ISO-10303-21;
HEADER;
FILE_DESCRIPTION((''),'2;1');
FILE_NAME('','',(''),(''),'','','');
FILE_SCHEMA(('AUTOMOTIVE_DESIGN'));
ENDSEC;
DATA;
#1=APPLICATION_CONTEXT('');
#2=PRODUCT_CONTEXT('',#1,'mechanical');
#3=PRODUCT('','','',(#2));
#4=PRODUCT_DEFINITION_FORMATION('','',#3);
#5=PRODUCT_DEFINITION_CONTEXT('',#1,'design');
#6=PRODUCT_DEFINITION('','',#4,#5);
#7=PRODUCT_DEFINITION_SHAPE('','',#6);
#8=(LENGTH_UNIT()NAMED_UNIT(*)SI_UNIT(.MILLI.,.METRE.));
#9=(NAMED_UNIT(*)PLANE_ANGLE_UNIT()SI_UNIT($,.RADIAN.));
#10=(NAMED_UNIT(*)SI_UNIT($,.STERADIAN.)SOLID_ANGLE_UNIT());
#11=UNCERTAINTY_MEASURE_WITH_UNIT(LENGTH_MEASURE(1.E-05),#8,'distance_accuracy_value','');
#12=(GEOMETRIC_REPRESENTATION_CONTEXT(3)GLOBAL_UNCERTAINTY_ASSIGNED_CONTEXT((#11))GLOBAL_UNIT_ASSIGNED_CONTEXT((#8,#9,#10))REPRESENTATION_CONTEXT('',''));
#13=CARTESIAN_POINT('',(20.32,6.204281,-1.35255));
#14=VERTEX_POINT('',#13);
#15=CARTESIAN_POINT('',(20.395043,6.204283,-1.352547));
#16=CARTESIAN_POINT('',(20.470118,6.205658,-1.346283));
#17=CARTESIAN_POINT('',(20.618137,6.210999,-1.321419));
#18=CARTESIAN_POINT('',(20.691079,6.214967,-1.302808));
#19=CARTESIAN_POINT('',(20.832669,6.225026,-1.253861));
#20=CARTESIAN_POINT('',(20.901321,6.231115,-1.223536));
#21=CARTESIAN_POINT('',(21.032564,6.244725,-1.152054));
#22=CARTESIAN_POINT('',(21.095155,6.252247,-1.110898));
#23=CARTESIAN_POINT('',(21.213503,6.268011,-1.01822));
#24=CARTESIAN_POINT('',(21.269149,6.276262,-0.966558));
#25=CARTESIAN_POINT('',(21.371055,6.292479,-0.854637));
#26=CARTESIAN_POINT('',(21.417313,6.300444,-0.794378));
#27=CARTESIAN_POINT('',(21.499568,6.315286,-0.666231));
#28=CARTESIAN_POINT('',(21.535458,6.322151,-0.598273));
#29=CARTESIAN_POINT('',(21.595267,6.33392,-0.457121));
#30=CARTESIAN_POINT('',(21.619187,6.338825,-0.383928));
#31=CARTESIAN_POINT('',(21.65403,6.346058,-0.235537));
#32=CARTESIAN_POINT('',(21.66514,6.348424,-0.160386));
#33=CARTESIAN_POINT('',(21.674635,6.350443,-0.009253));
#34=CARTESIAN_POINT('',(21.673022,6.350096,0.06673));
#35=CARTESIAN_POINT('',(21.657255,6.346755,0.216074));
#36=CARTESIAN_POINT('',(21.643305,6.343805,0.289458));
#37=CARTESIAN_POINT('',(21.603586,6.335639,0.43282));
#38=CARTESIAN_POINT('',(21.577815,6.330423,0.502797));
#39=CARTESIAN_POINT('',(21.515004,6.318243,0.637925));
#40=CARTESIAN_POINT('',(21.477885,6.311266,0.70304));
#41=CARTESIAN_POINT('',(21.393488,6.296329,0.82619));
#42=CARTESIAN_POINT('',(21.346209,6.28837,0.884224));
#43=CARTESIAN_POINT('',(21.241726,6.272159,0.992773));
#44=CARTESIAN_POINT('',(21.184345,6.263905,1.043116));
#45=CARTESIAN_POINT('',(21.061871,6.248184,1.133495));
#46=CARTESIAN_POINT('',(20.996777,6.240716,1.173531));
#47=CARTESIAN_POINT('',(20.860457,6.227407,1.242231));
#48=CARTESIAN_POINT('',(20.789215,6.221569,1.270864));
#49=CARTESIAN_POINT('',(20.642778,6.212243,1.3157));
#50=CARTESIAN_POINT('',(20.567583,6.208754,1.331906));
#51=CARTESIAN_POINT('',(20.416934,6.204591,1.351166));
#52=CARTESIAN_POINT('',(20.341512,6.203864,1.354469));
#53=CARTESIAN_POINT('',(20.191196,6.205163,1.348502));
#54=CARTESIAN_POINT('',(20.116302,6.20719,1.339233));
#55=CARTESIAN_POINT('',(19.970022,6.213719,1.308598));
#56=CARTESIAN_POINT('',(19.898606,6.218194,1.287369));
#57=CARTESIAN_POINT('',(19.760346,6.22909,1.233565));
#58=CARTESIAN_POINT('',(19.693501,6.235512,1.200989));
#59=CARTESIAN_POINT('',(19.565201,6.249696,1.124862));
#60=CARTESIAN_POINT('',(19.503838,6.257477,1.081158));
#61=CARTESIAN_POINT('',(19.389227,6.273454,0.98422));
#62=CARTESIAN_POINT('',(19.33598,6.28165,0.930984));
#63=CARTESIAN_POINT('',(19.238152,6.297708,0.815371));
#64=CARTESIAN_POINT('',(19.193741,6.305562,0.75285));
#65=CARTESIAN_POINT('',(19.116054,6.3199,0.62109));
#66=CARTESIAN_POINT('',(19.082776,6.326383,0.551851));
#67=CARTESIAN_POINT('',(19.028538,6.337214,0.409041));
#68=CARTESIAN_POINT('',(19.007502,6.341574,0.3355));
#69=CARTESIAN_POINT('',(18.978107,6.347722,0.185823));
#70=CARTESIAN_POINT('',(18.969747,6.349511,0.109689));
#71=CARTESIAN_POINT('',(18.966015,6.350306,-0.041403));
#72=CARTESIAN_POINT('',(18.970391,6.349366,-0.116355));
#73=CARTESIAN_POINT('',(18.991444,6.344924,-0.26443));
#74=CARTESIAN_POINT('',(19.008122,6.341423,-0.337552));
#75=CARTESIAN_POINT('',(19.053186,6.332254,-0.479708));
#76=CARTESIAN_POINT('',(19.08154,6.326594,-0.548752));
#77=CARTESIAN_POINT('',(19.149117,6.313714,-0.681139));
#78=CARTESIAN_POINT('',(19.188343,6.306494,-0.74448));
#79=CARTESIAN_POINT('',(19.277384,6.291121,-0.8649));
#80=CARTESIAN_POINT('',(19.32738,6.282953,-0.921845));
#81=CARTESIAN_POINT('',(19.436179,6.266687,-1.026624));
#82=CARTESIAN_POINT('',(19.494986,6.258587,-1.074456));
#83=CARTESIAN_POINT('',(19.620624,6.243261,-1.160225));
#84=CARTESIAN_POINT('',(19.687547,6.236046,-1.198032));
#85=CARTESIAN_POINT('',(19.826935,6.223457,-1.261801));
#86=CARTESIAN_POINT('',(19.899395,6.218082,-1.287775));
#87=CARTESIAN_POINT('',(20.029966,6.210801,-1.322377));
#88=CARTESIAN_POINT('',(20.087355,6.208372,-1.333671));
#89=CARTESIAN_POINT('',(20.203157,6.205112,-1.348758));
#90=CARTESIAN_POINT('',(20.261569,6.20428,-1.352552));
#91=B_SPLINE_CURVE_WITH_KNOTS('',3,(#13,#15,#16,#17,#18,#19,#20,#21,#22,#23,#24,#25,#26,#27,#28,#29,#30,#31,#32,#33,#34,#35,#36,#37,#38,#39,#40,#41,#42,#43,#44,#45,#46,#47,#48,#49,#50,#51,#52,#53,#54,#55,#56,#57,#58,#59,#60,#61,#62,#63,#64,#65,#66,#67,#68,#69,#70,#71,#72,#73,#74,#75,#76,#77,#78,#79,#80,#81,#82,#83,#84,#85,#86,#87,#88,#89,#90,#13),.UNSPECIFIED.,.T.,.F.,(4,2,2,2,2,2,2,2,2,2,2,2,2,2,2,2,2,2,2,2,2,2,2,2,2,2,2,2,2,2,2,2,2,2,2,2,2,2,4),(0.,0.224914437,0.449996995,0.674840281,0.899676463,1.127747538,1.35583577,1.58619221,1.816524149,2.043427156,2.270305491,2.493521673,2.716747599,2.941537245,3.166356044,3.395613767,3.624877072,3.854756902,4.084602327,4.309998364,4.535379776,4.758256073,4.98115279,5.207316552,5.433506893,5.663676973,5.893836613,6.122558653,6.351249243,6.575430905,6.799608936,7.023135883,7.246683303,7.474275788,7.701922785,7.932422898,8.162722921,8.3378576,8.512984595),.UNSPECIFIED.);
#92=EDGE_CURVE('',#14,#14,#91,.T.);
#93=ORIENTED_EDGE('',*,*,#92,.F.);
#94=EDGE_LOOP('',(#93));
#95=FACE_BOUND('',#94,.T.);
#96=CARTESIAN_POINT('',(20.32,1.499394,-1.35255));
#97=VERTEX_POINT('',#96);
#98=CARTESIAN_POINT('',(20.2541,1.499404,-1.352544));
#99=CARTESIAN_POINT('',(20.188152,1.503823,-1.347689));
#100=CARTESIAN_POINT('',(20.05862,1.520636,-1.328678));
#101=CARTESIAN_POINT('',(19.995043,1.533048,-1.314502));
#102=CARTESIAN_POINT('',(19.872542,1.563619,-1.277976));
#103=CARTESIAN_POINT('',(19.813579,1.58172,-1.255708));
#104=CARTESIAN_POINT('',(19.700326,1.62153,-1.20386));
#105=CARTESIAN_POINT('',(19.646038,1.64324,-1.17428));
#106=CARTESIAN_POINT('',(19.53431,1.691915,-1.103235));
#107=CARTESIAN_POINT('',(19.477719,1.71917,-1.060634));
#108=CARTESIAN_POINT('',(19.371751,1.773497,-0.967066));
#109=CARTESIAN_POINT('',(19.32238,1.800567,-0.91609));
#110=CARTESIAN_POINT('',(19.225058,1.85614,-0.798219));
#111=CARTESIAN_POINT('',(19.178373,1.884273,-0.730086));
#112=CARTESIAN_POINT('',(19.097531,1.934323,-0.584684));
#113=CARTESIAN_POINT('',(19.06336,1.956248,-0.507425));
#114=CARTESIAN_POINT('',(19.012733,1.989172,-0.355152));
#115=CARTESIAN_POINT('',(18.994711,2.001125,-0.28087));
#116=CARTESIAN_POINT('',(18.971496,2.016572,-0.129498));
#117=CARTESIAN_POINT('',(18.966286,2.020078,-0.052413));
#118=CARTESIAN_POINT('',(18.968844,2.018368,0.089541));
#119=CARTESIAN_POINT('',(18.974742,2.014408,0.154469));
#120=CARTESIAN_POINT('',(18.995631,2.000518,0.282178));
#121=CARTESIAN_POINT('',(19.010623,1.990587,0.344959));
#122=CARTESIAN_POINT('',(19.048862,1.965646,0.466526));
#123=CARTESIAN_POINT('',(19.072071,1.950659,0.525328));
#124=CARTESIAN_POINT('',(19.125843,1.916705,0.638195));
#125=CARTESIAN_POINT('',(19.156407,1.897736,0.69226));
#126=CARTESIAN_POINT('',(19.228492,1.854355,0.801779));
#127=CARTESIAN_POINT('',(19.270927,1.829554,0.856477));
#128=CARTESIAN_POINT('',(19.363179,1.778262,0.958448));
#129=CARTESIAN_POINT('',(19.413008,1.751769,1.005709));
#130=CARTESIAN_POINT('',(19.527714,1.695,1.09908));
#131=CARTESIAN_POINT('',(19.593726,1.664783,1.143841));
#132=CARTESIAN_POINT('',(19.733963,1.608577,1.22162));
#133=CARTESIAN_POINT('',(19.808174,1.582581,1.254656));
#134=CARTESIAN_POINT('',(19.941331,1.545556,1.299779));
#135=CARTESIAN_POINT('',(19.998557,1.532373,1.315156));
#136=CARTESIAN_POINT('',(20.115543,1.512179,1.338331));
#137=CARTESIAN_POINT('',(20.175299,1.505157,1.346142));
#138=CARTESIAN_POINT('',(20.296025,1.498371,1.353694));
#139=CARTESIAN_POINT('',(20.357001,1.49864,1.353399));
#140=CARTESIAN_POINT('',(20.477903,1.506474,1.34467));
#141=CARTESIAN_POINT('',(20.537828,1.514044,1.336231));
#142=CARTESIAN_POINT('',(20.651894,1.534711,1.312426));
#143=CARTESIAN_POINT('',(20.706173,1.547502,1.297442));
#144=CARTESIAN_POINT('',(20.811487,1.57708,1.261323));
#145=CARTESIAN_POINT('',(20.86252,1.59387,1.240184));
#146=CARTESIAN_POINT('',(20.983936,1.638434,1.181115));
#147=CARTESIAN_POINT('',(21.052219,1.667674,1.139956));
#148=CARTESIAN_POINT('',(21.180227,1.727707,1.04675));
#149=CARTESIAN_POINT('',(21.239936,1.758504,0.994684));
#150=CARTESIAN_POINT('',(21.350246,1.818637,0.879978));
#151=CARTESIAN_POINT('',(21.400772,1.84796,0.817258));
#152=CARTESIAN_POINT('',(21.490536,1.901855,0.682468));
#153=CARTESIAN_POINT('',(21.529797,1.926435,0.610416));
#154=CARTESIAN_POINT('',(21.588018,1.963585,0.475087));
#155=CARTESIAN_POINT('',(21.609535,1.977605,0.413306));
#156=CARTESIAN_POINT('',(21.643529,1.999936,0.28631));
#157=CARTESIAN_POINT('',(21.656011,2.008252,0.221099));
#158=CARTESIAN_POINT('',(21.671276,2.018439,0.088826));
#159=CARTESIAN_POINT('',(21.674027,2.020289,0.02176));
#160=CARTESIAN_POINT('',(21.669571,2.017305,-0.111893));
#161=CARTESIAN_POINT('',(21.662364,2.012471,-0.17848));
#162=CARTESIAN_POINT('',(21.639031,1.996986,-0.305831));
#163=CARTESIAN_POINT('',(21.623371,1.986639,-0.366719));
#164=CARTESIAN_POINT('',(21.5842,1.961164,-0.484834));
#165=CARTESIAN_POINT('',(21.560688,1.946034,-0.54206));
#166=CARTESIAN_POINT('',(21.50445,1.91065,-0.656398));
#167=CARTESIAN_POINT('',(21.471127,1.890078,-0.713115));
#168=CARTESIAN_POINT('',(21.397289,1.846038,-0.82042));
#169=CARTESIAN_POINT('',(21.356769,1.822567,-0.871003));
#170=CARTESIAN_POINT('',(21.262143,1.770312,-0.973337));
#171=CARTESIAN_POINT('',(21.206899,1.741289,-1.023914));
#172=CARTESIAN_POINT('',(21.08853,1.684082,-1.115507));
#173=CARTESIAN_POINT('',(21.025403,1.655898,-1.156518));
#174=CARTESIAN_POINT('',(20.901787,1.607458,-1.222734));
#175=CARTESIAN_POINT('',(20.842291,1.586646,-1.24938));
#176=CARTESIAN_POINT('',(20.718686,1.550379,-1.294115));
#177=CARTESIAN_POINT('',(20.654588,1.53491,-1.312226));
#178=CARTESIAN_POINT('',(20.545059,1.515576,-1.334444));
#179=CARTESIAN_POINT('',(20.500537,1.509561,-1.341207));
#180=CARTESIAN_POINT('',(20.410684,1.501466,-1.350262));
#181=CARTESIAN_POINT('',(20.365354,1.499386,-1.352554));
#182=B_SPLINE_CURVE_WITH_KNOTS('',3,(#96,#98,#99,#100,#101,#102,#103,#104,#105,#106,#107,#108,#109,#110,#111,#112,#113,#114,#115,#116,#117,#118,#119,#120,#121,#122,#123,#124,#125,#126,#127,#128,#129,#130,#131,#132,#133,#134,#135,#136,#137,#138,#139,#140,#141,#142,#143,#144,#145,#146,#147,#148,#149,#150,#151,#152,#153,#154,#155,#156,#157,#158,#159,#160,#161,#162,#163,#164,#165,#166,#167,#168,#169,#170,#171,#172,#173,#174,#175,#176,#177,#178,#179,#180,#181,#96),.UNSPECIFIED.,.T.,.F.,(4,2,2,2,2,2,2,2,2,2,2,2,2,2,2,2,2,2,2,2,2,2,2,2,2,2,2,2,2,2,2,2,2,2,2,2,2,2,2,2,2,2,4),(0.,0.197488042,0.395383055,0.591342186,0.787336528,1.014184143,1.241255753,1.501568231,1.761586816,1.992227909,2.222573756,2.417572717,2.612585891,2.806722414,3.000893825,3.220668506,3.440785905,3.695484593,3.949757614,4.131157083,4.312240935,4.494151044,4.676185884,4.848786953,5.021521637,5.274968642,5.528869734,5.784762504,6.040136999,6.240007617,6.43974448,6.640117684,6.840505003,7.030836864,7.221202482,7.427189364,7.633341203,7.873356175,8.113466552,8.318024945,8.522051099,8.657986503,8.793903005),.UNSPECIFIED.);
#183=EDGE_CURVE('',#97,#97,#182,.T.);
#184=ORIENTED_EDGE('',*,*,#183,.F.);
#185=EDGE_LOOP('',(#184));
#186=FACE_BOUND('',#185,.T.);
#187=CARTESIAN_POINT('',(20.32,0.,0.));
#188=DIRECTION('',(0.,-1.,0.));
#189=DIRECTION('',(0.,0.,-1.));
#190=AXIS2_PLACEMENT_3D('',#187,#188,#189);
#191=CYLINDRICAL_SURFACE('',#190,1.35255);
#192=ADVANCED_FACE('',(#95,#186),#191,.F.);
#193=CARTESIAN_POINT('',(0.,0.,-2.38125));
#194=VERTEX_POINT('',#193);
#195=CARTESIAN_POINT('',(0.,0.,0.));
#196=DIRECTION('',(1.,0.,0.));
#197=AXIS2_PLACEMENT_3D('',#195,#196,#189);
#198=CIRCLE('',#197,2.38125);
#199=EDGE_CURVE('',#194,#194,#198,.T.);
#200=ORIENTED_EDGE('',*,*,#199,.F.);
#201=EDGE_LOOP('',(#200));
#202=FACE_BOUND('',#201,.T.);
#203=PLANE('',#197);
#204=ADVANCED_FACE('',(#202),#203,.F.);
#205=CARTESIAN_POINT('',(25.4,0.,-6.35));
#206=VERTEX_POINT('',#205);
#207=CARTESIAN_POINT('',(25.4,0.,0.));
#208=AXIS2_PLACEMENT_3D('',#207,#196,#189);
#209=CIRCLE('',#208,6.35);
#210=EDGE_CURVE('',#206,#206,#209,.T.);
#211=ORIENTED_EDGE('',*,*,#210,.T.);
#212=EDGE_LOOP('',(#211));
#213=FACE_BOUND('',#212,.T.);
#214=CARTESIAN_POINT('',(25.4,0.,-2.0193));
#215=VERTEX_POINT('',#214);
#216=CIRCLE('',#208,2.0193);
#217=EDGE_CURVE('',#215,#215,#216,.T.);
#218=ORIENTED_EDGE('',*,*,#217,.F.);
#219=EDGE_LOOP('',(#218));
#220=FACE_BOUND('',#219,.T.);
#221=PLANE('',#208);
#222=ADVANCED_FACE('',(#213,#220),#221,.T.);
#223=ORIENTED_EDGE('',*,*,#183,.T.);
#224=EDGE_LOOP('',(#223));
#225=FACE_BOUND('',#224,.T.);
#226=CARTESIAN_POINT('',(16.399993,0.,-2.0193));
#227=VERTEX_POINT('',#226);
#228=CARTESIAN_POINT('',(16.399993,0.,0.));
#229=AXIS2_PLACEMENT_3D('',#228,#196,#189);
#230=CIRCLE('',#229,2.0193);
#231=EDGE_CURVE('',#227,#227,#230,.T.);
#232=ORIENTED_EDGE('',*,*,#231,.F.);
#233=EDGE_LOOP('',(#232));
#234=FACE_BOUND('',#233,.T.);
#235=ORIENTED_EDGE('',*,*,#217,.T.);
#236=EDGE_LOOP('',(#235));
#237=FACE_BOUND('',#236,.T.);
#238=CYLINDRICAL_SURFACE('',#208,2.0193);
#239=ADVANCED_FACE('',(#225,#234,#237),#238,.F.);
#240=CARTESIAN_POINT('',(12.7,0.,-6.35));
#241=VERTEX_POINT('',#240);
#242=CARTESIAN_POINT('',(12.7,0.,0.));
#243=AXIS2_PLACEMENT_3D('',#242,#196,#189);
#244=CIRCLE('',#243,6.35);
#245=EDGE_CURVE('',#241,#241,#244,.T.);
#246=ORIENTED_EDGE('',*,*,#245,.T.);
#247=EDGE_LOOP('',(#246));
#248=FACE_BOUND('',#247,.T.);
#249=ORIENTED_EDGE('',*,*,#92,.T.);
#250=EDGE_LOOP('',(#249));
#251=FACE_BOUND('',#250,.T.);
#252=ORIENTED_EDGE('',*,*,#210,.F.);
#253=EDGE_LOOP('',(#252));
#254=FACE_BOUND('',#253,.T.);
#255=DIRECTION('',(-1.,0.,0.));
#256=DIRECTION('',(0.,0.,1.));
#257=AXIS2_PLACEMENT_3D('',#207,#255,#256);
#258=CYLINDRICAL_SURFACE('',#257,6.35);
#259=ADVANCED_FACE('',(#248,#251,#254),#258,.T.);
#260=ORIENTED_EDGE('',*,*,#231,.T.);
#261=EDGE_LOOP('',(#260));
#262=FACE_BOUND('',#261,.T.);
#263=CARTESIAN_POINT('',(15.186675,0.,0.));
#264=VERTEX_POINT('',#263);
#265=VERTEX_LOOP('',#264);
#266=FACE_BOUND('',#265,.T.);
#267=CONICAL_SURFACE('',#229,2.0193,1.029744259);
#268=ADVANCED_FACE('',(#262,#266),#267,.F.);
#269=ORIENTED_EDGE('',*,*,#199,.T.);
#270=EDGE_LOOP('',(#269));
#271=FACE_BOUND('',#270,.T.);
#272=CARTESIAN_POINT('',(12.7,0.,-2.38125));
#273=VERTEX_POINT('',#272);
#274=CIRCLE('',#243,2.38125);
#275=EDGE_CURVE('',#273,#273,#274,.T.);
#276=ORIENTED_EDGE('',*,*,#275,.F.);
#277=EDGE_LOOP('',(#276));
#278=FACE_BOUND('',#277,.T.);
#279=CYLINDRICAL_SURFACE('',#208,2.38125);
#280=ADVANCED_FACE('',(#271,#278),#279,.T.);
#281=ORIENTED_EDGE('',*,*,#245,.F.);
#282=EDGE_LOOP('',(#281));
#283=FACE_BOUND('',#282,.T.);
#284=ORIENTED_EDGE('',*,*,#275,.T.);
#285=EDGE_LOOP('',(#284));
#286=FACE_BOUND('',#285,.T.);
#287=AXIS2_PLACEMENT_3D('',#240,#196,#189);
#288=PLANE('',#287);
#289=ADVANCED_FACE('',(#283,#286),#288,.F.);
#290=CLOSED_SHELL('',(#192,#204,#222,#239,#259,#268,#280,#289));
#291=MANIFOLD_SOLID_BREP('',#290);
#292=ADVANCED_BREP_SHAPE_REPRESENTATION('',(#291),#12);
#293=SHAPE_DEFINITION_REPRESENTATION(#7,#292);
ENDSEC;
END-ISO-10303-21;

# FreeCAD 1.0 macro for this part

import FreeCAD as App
import Part
import Sketcher
Q = App.Units.Quantity

doc = App.newDocument("Part")
params = doc.addObject("Spreadsheet::Sheet", "Params")
for row, (alias, value) in enumerate([
    ("sketch1_diameter", "0.5 in"),
    ("pad1_length", "1 in"),
    ("sketch2_diameter", "0.159 in"),
    ("hole_diameter", "0.159 in"),
    ("hole_depth", "9.000007 mm"),
    ("sketch3_width", "0.25 in"),
    ("groove_angle", "360 deg"),
    ("sketch4_width", "0.5 in"),
    ("sketch4_height", "0.15625 in"),
    ("groove2_angle", "360 deg"),
], start=1):
    params.set(f"A{row}", alias)
    params.set(f"B{row}", "=" + value)
    params.setAlias(f"B{row}", alias)

body = doc.addObject("PartDesign::Body", "Body")

# Sketch on YZ plane
sketch1 = body.newObject("Sketcher::SketchObject", "Sketch")
sketch1.AttachmentSupport = (doc.getObject("YZ_Plane"), [""])
sketch1.MapMode = "FlatFace"
sketch1.addGeometry(Part.Circle(App.Vector(0, 0, 0), App.Vector(0, 0, 1), 6.35), False)
sketch1.addConstraint(Sketcher.Constraint("Coincident", 0, 3, -1, 1))
sketch1.addConstraint(Sketcher.Constraint("Diameter", 0, Q("0.5 in")))
sketch1.setExpression("Constraints[1]", "Params.sketch1_diameter")
pad1 = body.newObject("PartDesign::Pad", "Pad")
pad1.Profile = sketch1
pad1.setExpression("Length", "Params.pad1_length")

# Sketch on YZ plane
sketch2 = body.newObject("Sketcher::SketchObject", "Sketch001")
sketch2.AttachmentSupport = (doc.getObject("YZ_Plane"), [""])
sketch2.MapMode = "FlatFace"
sketch2.AttachmentOffset = App.Placement(App.Vector(0, 0, 1 * 25.4), App.Rotation())
sketch2.addGeometry(Part.Circle(App.Vector(0, 0, 0), App.Vector(0, 0, 1), 2.0193), False)
sketch2.addConstraint(Sketcher.Constraint("Coincident", 0, 3, -1, 1))
sketch2.addConstraint(Sketcher.Constraint("Diameter", 0, Q("0.159 in")))
sketch2.setExpression("Constraints[1]", "Params.sketch2_diameter")
doc.recompute()
hole = body.newObject("PartDesign::Hole", "Hole")
hole.Profile = sketch2
hole.ThreadType = "None"
hole.setExpression("Diameter", "Params.hole_diameter")
hole.DepthType = "Dimension"
hole.setExpression("Depth", "Params.hole_depth")
hole.DrillPoint = "Angled"
hole.DrillPointAngle = 118

# Sketch on YZ plane
sketch3 = body.newObject("Sketcher::SketchObject", "Sketch002")
sketch3.AttachmentSupport = (doc.getObject("YZ_Plane"), [""])
sketch3.MapMode = "FlatFace"
sketch3.AttachmentOffset = App.Placement(App.Vector(0, 0, 0.8 * 25.4), App.Rotation())
sketch3.addGeometry(Part.LineSegment(App.Vector(6.35, 0, 0), App.Vector(0, 0, 0)), False)
sketch3.addGeometry(Part.LineSegment(App.Vector(0, 0, 0), App.Vector(0, -1.35255, 0)), False)
sketch3.addGeometry(Part.LineSegment(App.Vector(0, -1.35255, 0), App.Vector(6.35, -1.35255, 0)), False)
sketch3.addGeometry(Part.LineSegment(App.Vector(6.35, -1.35255, 0), App.Vector(6.35, 0, 0)), False)
sketch3.addConstraint(Sketcher.Constraint("Coincident", 0, 2, 1, 1))
sketch3.addConstraint(Sketcher.Constraint("Coincident", 1, 2, 2, 1))
sketch3.addConstraint(Sketcher.Constraint("Coincident", 2, 2, 3, 1))
sketch3.addConstraint(Sketcher.Constraint("Coincident", 3, 2, 0, 1))
sketch3.addConstraint(Sketcher.Constraint("Horizontal", 0))
sketch3.addConstraint(Sketcher.Constraint("Vertical", 1))
sketch3.addConstraint(Sketcher.Constraint("Horizontal", 2))
sketch3.addConstraint(Sketcher.Constraint("Vertical", 3))
sketch3.addConstraint(Sketcher.Constraint("Coincident", 0, 2, -1, 1))
sketch3.addConstraint(Sketcher.Constraint("DistanceX", 0, 2, 0, 1, Q("0.25 in")))
sketch3.addConstraint(Sketcher.Constraint("DistanceY", 1, 2, 1, 1, 1.35255))
sketch3.setExpression("Constraints[9]", "Params.sketch3_width")
groove = body.newObject("PartDesign::Groove", "Groove")
groove.Profile = sketch3
groove.ReferenceAxis = (sketch3, ["H_Axis"])
groove.setExpression("Angle", "Params.groove_angle")

# Sketch on XZ plane
sketch4 = body.newObject("Sketcher::SketchObject", "Sketch003")
sketch4.AttachmentSupport = (doc.getObject("XZ_Plane"), [""])
sketch4.MapMode = "FlatFace"
sketch4.addGeometry(Part.LineSegment(App.Vector(0, -6.35, 0), App.Vector(0, -2.38125, 0)), False)
sketch4.addGeometry(Part.LineSegment(App.Vector(0, -2.38125, 0), App.Vector(12.7, -2.38125, 0)), False)
sketch4.addGeometry(Part.LineSegment(App.Vector(12.7, -2.38125, 0), App.Vector(12.7, -6.35, 0)), False)
sketch4.addGeometry(Part.LineSegment(App.Vector(12.7, -6.35, 0), App.Vector(0, -6.35, 0)), False)
sketch4.addConstraint(Sketcher.Constraint("Coincident", 0, 2, 1, 1))
sketch4.addConstraint(Sketcher.Constraint("Coincident", 1, 2, 2, 1))
sketch4.addConstraint(Sketcher.Constraint("Coincident", 2, 2, 3, 1))
sketch4.addConstraint(Sketcher.Constraint("Coincident", 3, 2, 0, 1))
sketch4.addConstraint(Sketcher.Constraint("Vertical", 0))
sketch4.addConstraint(Sketcher.Constraint("Horizontal", 1))
sketch4.addConstraint(Sketcher.Constraint("Vertical", 2))
sketch4.addConstraint(Sketcher.Constraint("Horizontal", 3))
sketch4.addConstraint(Sketcher.Constraint("PointOnObject", 0, 2, -2))
sketch4.addConstraint(Sketcher.Constraint("DistanceX", 1, 1, 1, 2, Q("0.5 in")))
sketch4.addConstraint(Sketcher.Constraint("DistanceY", 0, 1, 0, 2, Q("0.15625 in")))
sketch4.addConstraint(Sketcher.Constraint("DistanceY", 2, 2, -1, 1, Q("0.25 in")))
sketch4.setExpression("Constraints[9]", "Params.sketch4_width")
sketch4.setExpression("Constraints[10]", "Params.sketch4_height")
groove2 = body.newObject("PartDesign::Groove", "Groove001")
groove2.Profile = sketch4
groove2.ReferenceAxis = (sketch4, ["H_Axis"])
groove2.setExpression("Angle", "Params.groove2_angle")

doc.recompute()
